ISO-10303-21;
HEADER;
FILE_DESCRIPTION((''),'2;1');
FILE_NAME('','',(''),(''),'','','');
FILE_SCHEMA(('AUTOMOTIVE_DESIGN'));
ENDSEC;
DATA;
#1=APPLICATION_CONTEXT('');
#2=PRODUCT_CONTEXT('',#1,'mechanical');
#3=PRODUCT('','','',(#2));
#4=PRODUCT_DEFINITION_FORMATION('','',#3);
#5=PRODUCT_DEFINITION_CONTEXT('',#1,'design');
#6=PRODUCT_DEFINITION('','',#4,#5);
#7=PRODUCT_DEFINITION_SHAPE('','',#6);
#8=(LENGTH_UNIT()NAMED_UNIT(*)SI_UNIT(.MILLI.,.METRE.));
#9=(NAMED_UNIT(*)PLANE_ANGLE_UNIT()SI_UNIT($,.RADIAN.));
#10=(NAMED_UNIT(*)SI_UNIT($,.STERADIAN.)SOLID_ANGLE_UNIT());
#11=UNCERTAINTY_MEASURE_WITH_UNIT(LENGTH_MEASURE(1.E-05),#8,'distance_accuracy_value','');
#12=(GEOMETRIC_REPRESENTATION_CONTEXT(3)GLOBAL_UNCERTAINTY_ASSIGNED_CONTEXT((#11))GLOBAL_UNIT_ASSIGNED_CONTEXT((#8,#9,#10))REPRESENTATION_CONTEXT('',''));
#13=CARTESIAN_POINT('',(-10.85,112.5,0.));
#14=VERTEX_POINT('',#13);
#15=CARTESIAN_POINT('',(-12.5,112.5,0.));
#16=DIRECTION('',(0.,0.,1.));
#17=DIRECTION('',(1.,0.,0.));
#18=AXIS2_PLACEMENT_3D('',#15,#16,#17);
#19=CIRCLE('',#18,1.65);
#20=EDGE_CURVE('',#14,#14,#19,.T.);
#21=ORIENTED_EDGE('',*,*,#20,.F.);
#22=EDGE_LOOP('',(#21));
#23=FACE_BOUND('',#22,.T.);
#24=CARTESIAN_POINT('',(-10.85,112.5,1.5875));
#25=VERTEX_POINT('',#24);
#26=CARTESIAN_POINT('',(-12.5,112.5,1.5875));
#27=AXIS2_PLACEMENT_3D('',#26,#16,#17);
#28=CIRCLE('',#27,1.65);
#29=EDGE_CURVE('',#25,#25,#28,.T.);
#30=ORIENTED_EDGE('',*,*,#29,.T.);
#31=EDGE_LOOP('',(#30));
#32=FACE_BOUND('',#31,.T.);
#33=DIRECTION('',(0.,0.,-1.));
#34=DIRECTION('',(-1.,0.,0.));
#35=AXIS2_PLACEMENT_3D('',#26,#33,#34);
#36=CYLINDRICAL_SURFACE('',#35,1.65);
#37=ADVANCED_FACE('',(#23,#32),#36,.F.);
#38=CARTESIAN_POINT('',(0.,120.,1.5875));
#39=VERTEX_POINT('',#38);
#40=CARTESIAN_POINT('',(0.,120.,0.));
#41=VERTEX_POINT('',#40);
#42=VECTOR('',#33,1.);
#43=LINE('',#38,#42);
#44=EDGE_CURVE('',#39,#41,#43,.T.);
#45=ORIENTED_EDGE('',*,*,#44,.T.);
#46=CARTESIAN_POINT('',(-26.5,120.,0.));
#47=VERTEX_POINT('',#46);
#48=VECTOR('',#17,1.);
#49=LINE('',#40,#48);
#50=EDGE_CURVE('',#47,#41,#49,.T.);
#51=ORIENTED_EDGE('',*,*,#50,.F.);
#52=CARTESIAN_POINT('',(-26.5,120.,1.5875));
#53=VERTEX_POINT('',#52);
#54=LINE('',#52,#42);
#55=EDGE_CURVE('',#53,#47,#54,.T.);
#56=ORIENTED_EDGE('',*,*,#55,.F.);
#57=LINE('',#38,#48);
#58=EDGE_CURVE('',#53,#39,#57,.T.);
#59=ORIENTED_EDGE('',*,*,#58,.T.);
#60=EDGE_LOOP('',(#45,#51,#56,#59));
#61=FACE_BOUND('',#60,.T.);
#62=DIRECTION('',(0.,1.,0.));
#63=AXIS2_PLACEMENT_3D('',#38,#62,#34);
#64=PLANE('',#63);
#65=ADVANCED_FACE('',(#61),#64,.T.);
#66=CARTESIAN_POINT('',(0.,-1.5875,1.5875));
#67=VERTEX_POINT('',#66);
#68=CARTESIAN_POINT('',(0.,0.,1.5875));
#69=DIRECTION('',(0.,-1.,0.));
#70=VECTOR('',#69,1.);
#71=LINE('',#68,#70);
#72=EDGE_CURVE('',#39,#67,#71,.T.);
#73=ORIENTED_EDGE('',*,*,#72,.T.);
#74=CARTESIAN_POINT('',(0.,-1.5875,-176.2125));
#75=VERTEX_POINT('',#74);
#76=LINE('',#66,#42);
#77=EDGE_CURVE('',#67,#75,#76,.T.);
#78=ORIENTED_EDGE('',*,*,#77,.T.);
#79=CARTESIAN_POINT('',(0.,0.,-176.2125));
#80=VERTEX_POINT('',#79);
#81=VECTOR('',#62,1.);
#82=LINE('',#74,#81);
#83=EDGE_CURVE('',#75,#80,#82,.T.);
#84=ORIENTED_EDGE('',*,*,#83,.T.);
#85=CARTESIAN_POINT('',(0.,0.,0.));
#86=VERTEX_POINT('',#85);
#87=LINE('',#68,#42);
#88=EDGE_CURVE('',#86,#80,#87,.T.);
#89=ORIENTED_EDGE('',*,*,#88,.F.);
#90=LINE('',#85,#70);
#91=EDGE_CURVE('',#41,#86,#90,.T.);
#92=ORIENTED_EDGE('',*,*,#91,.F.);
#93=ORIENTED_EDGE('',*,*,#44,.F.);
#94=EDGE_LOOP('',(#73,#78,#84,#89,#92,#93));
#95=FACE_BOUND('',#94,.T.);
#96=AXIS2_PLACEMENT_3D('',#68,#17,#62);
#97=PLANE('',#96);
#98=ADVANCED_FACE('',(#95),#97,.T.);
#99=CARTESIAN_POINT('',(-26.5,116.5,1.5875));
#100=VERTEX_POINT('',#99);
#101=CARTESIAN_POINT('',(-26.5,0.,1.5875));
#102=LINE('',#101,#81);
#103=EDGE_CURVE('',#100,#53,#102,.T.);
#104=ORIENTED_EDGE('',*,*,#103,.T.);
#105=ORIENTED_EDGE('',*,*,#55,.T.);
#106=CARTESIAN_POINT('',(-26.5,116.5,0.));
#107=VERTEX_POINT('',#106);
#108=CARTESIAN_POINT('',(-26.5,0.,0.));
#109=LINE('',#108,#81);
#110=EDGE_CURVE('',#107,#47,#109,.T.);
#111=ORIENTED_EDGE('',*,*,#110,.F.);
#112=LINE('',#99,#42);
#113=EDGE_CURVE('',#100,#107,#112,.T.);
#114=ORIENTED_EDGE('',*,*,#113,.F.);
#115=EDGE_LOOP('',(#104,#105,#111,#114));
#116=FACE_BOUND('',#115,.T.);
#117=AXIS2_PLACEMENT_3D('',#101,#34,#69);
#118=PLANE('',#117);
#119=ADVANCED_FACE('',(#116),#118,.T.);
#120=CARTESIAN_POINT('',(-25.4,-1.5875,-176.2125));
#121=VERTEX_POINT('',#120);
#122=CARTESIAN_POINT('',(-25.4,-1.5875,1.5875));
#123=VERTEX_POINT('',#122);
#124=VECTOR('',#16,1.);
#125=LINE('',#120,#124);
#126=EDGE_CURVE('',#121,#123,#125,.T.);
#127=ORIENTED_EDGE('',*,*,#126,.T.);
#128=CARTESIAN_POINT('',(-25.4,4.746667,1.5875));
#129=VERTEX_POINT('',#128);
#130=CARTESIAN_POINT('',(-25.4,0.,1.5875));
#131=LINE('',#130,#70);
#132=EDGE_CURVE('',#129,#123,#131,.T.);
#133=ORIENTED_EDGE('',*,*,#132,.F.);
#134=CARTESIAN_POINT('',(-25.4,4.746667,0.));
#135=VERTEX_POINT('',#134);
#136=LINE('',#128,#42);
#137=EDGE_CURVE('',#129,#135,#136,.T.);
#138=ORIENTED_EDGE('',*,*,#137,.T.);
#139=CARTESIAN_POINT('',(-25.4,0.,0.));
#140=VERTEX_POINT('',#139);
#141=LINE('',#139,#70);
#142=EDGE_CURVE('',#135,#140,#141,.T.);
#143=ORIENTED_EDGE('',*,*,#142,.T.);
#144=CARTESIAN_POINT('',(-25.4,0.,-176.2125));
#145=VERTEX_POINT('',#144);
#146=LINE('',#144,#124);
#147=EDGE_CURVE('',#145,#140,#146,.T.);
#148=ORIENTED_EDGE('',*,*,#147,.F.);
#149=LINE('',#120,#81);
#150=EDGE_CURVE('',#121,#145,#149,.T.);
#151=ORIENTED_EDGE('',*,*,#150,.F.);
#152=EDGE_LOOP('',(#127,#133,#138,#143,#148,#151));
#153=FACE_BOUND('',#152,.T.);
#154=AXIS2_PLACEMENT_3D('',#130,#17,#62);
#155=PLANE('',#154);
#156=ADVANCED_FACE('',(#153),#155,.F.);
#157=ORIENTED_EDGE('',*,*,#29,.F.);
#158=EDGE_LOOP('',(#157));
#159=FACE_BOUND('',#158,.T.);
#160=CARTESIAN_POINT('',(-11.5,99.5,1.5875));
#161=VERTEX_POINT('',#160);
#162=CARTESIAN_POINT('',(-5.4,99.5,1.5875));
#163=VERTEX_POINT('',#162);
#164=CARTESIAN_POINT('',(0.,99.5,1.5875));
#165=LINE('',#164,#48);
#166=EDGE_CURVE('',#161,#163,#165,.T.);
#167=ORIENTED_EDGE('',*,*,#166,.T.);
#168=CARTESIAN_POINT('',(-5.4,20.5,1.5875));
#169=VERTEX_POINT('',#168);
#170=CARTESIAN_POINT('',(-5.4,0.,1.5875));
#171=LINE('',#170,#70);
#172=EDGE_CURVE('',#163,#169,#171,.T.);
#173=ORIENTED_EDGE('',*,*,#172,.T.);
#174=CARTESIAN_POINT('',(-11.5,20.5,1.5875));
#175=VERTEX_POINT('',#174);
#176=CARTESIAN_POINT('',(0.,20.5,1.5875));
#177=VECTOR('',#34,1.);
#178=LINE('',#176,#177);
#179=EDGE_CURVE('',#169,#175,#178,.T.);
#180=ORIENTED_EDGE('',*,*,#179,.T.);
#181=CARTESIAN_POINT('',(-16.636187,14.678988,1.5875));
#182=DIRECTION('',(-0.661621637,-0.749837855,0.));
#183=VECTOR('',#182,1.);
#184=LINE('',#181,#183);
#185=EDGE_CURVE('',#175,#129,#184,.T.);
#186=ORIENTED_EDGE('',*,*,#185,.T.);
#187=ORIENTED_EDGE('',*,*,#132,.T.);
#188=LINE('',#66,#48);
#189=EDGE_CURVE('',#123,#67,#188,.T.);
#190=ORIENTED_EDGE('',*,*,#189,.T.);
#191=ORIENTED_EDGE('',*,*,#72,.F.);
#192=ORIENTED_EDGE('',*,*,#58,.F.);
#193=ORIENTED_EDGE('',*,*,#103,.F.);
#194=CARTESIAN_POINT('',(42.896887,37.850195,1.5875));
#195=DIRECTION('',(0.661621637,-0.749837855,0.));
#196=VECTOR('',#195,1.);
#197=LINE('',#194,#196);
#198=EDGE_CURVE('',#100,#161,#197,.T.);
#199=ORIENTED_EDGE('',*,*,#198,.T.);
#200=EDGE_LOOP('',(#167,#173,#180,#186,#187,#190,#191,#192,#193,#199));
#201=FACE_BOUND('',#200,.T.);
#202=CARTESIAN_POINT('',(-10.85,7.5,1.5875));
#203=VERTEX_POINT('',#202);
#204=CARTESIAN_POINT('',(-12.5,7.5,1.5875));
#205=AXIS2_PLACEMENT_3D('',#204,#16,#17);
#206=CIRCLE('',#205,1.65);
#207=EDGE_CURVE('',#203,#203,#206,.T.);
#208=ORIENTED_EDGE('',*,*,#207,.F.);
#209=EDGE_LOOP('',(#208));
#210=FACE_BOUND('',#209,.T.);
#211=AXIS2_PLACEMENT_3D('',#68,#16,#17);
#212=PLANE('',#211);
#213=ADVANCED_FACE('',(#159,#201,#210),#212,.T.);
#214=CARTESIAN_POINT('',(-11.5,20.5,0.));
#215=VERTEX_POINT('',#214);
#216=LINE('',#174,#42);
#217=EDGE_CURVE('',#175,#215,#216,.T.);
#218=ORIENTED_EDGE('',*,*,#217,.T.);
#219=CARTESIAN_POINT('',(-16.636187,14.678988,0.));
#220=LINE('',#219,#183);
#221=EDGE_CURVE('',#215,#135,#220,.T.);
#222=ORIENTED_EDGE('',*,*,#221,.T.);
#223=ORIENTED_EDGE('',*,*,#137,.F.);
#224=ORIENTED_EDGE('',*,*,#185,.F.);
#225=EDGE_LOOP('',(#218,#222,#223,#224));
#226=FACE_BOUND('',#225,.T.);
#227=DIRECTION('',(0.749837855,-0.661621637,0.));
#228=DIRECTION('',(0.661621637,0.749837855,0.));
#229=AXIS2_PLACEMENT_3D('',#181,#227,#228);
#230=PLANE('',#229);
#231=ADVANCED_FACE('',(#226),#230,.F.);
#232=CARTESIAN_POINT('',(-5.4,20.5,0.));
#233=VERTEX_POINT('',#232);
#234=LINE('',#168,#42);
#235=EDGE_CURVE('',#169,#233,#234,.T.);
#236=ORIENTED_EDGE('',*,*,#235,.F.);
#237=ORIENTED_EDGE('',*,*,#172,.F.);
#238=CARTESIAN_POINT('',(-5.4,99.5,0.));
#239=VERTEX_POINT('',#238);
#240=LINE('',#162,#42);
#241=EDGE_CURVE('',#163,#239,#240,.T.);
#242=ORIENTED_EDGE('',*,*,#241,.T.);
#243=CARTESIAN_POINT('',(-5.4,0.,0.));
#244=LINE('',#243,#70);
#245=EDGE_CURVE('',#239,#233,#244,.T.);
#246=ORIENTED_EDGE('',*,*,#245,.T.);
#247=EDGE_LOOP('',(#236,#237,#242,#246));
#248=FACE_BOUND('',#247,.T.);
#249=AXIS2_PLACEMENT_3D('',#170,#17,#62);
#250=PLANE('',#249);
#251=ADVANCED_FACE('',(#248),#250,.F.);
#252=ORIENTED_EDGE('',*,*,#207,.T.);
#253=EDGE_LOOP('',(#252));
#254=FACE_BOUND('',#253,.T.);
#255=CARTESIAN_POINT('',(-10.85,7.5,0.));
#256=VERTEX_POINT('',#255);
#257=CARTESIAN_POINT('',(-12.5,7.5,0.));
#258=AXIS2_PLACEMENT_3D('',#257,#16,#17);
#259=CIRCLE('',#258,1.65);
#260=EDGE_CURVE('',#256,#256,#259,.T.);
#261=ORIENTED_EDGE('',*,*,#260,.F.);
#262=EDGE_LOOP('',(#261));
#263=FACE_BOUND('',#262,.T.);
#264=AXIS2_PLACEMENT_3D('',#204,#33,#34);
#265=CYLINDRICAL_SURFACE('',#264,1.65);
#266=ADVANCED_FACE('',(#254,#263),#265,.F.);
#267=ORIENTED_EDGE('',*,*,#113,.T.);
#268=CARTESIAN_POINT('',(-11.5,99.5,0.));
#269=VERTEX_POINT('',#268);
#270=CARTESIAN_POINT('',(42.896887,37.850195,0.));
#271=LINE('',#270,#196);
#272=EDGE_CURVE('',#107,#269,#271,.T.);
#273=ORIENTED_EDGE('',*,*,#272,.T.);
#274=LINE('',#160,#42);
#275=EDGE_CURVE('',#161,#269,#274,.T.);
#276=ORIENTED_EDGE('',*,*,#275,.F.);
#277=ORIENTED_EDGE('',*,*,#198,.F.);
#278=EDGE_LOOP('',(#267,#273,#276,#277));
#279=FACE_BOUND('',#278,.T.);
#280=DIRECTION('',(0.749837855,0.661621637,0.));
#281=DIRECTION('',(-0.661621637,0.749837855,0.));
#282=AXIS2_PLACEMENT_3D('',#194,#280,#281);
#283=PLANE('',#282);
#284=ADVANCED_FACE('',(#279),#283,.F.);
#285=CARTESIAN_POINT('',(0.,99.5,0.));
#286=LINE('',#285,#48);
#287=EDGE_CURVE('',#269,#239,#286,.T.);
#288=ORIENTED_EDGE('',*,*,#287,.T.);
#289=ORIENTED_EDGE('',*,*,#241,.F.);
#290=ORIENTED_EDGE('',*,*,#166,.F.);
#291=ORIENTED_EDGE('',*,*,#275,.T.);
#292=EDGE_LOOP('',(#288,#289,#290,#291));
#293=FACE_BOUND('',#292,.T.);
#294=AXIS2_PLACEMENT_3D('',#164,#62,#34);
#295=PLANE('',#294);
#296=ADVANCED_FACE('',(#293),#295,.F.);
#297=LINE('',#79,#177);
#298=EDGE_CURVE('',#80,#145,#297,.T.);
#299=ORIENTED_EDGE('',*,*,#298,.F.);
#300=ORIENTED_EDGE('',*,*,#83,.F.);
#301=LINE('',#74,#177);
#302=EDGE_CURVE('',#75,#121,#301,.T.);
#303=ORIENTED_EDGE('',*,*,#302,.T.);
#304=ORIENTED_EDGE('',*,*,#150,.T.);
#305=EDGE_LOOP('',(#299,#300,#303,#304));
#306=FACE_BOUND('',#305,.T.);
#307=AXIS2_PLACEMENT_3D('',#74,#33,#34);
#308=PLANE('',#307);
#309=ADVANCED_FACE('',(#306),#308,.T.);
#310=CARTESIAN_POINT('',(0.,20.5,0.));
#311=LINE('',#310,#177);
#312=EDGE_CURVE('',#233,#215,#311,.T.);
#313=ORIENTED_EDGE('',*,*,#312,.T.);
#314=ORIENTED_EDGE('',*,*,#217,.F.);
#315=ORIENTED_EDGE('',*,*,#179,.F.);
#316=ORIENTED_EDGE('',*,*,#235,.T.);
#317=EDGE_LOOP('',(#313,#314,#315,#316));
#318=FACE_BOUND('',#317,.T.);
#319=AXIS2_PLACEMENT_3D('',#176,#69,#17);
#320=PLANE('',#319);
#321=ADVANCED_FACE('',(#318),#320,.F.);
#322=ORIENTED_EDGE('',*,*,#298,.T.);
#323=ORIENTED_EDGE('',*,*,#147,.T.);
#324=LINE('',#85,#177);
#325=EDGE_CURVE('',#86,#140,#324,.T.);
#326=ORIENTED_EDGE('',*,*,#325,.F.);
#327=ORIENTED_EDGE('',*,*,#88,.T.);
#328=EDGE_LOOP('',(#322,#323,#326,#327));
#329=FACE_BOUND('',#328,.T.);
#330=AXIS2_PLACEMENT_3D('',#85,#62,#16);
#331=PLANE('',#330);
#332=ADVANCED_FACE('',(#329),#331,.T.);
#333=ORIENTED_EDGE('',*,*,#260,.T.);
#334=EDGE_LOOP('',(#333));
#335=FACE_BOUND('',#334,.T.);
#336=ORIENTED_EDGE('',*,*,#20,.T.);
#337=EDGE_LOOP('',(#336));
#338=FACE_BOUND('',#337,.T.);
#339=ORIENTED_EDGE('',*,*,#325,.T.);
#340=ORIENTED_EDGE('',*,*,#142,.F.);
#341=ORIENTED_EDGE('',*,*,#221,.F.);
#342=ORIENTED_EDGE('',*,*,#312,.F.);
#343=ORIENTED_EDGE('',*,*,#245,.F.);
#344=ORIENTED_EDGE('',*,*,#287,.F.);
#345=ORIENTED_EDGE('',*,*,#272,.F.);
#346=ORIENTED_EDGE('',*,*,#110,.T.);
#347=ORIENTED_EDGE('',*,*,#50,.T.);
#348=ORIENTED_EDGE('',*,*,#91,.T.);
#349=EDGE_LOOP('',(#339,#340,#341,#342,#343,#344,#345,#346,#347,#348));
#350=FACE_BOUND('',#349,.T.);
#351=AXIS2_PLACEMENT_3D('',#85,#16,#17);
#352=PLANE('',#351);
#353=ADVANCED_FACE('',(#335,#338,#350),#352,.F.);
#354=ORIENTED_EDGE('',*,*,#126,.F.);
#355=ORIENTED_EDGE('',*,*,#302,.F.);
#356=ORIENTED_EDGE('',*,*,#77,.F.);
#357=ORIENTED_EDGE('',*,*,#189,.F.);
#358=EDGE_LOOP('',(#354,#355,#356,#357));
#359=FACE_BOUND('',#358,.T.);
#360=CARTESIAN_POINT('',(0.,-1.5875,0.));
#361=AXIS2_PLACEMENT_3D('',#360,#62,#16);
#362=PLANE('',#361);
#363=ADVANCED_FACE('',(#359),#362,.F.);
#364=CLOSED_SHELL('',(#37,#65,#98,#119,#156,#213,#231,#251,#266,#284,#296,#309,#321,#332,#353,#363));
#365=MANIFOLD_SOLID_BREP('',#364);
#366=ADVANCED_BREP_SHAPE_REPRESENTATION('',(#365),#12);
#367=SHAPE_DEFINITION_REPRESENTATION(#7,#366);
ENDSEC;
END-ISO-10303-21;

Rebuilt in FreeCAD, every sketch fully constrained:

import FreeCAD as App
import Part
import Sketcher
Q = App.Units.Quantity


def add_polygon(sketch, points):
    """Adds a closed chain of lines whose ends are joined by coincident constraints."""
    first, n = sketch.GeometryCount, len(points)
    for a, b in zip(points, points[1:] + points[:1]):
        sketch.addGeometry(Part.LineSegment(App.Vector(*a, 0), App.Vector(*b, 0)), False)
    for i in range(n):
        sketch.addConstraint(Sketcher.Constraint("Coincident", first + i, 2, first + (i + 1) % n, 1))

doc = App.newDocument("Part")
params = doc.addObject("Spreadsheet::Sheet", "Params")
for row, (alias, value) in enumerate([
    ("sketch1_diameter", "3.3 mm"),
    ("sketch1_height", "79 mm"),
    ("sketch1_height2", "120 mm"),
    ("sketch1_width", "26.5 mm"),
    ("sketch1_width2", "6.1 mm"),
    ("pad1_length", "1.5875 mm"),
    ("sketch2_width", "25.4 mm"),
    ("sketch2_height", "177.8 mm"),
    ("pad2_length", "1.5875 mm"),
], start=1):
    params.set(f"A{row}", alias)
    params.set(f"B{row}", "=" + value)
    params.setAlias(f"B{row}", alias)

body = doc.addObject("PartDesign::Body", "Body")

sketch1 = doc.addObject("Sketcher::SketchObject", "Sketch")
body.addObject(sketch1)
sketch1.AttachmentSupport = (doc.XY_Plane, [""])
sketch1.MapMode = "FlatFace"
add_polygon(sketch1, [(0, 120), (-26.5, 120), (-26.5, 116.5), (-11.5, 99.5), (-5.4, 99.5), (-5.4, 20.5), (-11.5, 20.5), (-25.4, 4.7), (-25.4, 0), (0, 0)])
sketch1.addGeometry(Part.Circle(App.Vector(-12.5, 7.5, 0), App.Vector(0, 0, 1), 1.6), False)
sketch1.addGeometry(Part.Circle(App.Vector(-12.5, 112.5, 0), App.Vector(0, 0, 1), 1.6), False)
sketch1.addConstraint(Sketcher.Constraint("Horizontal", 0))
sketch1.addConstraint(Sketcher.Constraint("Vertical", 1))
sketch1.addConstraint(Sketcher.Constraint("Horizontal", 3))
sketch1.addConstraint(Sketcher.Constraint("Vertical", 4))
sketch1.addConstraint(Sketcher.Constraint("Horizontal", 5))
sketch1.addConstraint(Sketcher.Constraint("Vertical", 7))
sketch1.addConstraint(Sketcher.Constraint("Horizontal", 8))
sketch1.addConstraint(Sketcher.Constraint("Vertical", 9))
sketch1.addConstraint(Sketcher.Constraint("Coincident", 8, 2, -1, 1))
sketch1.addConstraint(Sketcher.Constraint("Equal", 10, 11))
sketch1.addConstraint(Sketcher.Constraint("Vertical", 10, 3, 11, 3))
sketch1.addConstraint(Sketcher.Constraint("Vertical", 2, 2, 5, 2))
sketch1.addConstraint(Sketcher.Constraint("Diameter", 10, Q("3.3 mm")))
sketch1.addConstraint(Sketcher.Constraint("DistanceY", 4, 2, 4, 1, Q("79 mm")))
sketch1.addConstraint(Sketcher.Constraint("DistanceY", 9, 1, 9, 2, Q("120 mm")))
sketch1.addConstraint(Sketcher.Constraint("DistanceX", 0, 2, 0, 1, Q("26.5 mm")))
sketch1.addConstraint(Sketcher.Constraint("DistanceX", 3, 1, 3, 2, Q("6.1 mm")))
sketch1.addConstraint(Sketcher.Constraint("DistanceX", 8, 1, 8, 2, Q("25.4 mm")))
sketch1.addConstraint(Sketcher.Constraint("DistanceY", 1, 2, 1, 1, Q("3.5 mm")))
sketch1.addConstraint(Sketcher.Constraint("DistanceY", 10, 3, 11, 3, Q("105 mm")))
sketch1.addConstraint(Sketcher.Constraint("DistanceX", 0, 2, 11, 3, Q("14 mm")))
sketch1.addConstraint(Sketcher.Constraint("DistanceY", 11, 3, 1, 2, Q("4 mm")))
sketch1.addConstraint(Sketcher.Constraint("DistanceX", 11, 3, 2, 2, Q("1 mm")))
sketch1.addConstraint(Sketcher.Constraint("DistanceY", 2, 2, 11, 3, Q("13 mm")))
sketch1.addConstraint(Sketcher.Constraint("DistanceY", 7, 2, 7, 1, Q("4.746667 mm")))
sketch1.setExpression("Constraints[22]", "Params.sketch1_diameter")
sketch1.setExpression("Constraints[23]", "Params.sketch1_height")
sketch1.setExpression("Constraints[24]", "Params.sketch1_height2")
sketch1.setExpression("Constraints[25]", "Params.sketch1_width")
sketch1.setExpression("Constraints[26]", "Params.sketch1_width2")
pad1 = doc.addObject("PartDesign::Pad", "Pad")
body.addObject(pad1)
pad1.Profile = sketch1
pad1.setExpression("Length", "Params.pad1_length")

sketch2 = doc.addObject("Sketcher::SketchObject", "Sketch001")
body.addObject(sketch2)
sketch2.AttachmentSupport = (doc.XZ_Plane, [""])
sketch2.MapMode = "FlatFace"
add_polygon(sketch2, [(-25, -176), (-25, 2), (0, 2), (0, -176)])
sketch2.addConstraint(Sketcher.Constraint("Vertical", 0))
sketch2.addConstraint(Sketcher.Constraint("Horizontal", 1))
sketch2.addConstraint(Sketcher.Constraint("Vertical", 2))
sketch2.addConstraint(Sketcher.Constraint("Horizontal", 3))
sketch2.addConstraint(Sketcher.Constraint("PointOnObject", 1, 2, -2))
sketch2.addConstraint(Sketcher.Constraint("DistanceX", 1, 1, 1, 2, Q("25.4 mm")))
sketch2.addConstraint(Sketcher.Constraint("DistanceY", 0, 1, 0, 2, Q("177.8 mm")))
sketch2.addConstraint(Sketcher.Constraint("DistanceY", -1, 1, 0, 2, Q("1.5875 mm")))
sketch2.setExpression("Constraints[9]", "Params.sketch2_width")
sketch2.setExpression("Constraints[10]", "Params.sketch2_height")
pad2 = doc.addObject("PartDesign::Pad", "Pad001")
body.addObject(pad2)
pad2.Profile = sketch2
pad2.setExpression("Length", "Params.pad2_length")

doc.recompute()
